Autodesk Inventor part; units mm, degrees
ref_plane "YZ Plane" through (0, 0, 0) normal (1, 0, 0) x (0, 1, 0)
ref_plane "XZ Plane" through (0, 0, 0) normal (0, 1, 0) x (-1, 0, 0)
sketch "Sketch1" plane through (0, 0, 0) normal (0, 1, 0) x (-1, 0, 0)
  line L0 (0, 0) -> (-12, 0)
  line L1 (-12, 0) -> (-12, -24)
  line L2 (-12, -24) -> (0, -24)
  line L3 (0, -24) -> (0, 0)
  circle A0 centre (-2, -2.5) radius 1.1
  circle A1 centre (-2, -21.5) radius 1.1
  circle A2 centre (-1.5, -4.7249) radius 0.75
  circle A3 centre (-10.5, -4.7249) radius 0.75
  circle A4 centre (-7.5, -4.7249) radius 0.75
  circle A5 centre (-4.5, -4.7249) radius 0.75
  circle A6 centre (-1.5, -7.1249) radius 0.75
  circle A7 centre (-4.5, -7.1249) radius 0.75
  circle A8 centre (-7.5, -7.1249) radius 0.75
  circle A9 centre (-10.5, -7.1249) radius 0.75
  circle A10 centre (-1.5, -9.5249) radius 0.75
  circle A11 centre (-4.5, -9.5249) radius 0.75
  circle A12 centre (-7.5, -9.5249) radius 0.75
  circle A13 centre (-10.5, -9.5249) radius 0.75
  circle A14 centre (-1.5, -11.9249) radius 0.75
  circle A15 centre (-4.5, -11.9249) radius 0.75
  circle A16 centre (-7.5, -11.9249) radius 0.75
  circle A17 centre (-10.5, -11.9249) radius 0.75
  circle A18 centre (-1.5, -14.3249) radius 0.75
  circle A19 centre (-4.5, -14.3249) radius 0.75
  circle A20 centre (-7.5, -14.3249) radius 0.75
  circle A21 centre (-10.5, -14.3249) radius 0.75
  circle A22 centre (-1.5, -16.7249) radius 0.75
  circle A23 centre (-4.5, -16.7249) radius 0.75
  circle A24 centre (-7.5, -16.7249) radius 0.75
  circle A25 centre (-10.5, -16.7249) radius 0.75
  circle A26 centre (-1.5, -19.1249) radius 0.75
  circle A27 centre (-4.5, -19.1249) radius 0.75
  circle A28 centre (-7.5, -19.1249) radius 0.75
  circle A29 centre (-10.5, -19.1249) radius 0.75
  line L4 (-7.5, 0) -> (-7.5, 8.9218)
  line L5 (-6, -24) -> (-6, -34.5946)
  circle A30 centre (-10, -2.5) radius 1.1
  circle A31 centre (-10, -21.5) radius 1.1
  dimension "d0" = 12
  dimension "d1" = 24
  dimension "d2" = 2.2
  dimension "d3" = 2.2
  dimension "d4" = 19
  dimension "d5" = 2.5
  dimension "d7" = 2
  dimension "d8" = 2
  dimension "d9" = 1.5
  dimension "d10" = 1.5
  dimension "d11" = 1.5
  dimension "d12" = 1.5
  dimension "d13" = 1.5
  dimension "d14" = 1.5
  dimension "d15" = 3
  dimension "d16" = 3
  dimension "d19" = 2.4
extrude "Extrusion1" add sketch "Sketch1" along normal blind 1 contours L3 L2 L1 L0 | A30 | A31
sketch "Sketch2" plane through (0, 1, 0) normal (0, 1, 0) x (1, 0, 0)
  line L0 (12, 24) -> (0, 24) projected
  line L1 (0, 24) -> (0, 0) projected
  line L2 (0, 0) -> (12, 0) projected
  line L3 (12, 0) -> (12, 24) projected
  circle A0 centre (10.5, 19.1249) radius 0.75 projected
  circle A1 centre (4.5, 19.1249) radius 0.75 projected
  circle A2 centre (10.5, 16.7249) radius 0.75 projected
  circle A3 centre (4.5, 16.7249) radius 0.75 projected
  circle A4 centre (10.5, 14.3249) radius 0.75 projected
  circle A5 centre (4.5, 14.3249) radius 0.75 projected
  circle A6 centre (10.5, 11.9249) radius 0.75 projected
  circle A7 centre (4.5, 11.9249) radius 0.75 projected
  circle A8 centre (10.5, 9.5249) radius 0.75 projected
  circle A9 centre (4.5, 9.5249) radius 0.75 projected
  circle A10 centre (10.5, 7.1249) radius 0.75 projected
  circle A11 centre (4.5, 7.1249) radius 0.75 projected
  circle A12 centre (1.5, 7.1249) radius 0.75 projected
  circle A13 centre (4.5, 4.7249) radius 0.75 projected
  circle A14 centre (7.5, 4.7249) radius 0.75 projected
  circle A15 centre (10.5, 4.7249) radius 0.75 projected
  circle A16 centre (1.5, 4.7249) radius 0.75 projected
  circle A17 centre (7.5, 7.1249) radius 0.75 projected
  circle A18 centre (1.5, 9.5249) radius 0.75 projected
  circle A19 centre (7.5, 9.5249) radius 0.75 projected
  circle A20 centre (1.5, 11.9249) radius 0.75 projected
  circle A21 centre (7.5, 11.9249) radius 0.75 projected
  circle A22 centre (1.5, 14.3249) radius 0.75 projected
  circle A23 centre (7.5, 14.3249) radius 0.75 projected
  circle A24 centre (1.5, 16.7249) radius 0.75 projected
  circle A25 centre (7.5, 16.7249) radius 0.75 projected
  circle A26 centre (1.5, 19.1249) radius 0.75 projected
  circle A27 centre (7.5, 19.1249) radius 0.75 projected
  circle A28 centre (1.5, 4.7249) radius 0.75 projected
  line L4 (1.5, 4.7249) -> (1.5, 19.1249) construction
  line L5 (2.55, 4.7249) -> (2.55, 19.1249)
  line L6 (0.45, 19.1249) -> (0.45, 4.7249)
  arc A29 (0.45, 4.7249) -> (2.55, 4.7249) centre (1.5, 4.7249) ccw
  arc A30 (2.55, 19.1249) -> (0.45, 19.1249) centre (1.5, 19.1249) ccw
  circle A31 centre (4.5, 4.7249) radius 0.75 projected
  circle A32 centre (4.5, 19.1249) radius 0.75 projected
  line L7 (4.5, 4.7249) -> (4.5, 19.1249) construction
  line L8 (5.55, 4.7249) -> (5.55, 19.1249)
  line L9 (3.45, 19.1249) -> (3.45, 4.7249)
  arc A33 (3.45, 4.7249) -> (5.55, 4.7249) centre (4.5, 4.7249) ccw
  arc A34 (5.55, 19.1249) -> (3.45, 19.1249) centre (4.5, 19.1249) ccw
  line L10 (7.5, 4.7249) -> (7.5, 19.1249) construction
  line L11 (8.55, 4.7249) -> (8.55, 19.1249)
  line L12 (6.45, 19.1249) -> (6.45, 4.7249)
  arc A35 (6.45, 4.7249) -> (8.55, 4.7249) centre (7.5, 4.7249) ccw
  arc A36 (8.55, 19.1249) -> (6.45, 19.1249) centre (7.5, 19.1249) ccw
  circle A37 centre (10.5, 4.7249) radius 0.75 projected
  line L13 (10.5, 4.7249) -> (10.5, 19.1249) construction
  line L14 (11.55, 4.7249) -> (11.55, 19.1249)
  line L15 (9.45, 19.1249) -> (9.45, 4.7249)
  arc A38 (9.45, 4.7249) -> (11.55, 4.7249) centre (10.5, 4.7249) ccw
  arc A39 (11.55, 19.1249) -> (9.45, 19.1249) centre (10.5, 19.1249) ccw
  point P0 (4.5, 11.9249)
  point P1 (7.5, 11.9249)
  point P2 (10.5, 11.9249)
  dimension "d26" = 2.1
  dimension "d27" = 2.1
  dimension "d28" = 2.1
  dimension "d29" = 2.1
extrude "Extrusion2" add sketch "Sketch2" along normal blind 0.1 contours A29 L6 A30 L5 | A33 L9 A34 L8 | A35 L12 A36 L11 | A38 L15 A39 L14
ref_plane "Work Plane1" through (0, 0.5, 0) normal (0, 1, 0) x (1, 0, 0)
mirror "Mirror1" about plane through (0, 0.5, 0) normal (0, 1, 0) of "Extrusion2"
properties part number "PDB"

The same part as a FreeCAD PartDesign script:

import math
import FreeCAD as App
import Part
import Sketcher
Q = App.Units.Quantity


def add_polygon(sketch, points):
    """Adds a closed chain of lines whose ends are joined by coincident constraints."""
    first, n = sketch.GeometryCount, len(points)
    for a, b in zip(points, points[1:] + points[:1]):
        sketch.addGeometry(Part.LineSegment(App.Vector(*a, 0), App.Vector(*b, 0)), False)
    for i in range(n):
        sketch.addConstraint(Sketcher.Constraint("Coincident", first + i, 2, first + (i + 1) % n, 1))

doc = App.newDocument("Part")
params = doc.addObject("Spreadsheet::Sheet", "Params")
for row, (alias, value) in enumerate([
    ("sketch1_diameter", "1.5 mm"),
    ("sketch1_diameter2", "2.2 mm"),
    ("sketch1_width", "12 mm"),
    ("sketch1_height", "24 mm"),
    ("pad1_length", "1 mm"),
    ("sketch2_radius", "1.05 mm"),
    ("sketch2_diameter", "1.5 mm"),
    ("sketch2_height", "14.4 mm"),
    ("pad2_length", "0.1 mm"),
], start=1):
    params.set(f"A{row}", alias)
    params.set(f"B{row}", "=" + value)
    params.setAlias(f"B{row}", alias)

body = doc.addObject("PartDesign::Body", "Body")

# Sketch on XZ plane
sketch1 = body.newObject("Sketcher::SketchObject", "Sketch")
sketch1.AttachmentSupport = (doc.getObject("XZ_Plane"), [""])
sketch1.MapMode = "FlatFace"
add_polygon(sketch1, [(0, -24), (0, 0), (12, 0), (12, -24)])  # lines 0-3
sketch1.addGeometry(Part.Circle(App.Vector(10.5, -19.1249, 0), App.Vector(0, 0, 1), 0.75), False)  # 4
sketch1.addGeometry(Part.Circle(App.Vector(7.5, -19.1249, 0), App.Vector(0, 0, 1), 0.75), False)  # 5
sketch1.addGeometry(Part.Circle(App.Vector(10.5, -16.7249, 0), App.Vector(0, 0, 1), 0.75), False)  # 6
sketch1.addGeometry(Part.Circle(App.Vector(10.5, -14.3249, 0), App.Vector(0, 0, 1), 0.75), False)  # 7
sketch1.addGeometry(Part.Circle(App.Vector(7.5, -16.7249, 0), App.Vector(0, 0, 1), 0.75), False)  # 8
sketch1.addGeometry(Part.Circle(App.Vector(7.5, -14.3249, 0), App.Vector(0, 0, 1), 0.75), False)  # 9
sketch1.addGeometry(Part.Circle(App.Vector(4.5, -19.1249, 0), App.Vector(0, 0, 1), 0.75), False)  # 10
sketch1.addGeometry(Part.Circle(App.Vector(2, -21.5, 0), App.Vector(0, 0, 1), 1.1), False)  # 11
sketch1.addGeometry(Part.Circle(App.Vector(1.5, -19.1249, 0), App.Vector(0, 0, 1), 0.75), False)  # 12
sketch1.addGeometry(Part.Circle(App.Vector(4.5, -16.7249, 0), App.Vector(0, 0, 1), 0.75), False)  # 13
sketch1.addGeometry(Part.Circle(App.Vector(4.5, -14.3249, 0), App.Vector(0, 0, 1), 0.75), False)  # 14
sketch1.addGeometry(Part.Circle(App.Vector(1.5, -16.7249, 0), App.Vector(0, 0, 1), 0.75), False)  # 15
sketch1.addGeometry(Part.Circle(App.Vector(1.5, -14.3249, 0), App.Vector(0, 0, 1), 0.75), False)  # 16
sketch1.addGeometry(Part.Circle(App.Vector(10.5, -11.9249, 0), App.Vector(0, 0, 1), 0.75), False)  # 17
sketch1.addGeometry(Part.Circle(App.Vector(10.5, -9.5249, 0), App.Vector(0, 0, 1), 0.75), False)  # 18
sketch1.addGeometry(Part.Circle(App.Vector(10.5, -7.1249, 0), App.Vector(0, 0, 1), 0.75), False)  # 19
sketch1.addGeometry(Part.Circle(App.Vector(7.5, -11.9249, 0), App.Vector(0, 0, 1), 0.75), False)  # 20
sketch1.addGeometry(Part.Circle(App.Vector(7.5, -9.5249, 0), App.Vector(0, 0, 1), 0.75), False)  # 21
sketch1.addGeometry(Part.Circle(App.Vector(7.5, -7.1249, 0), App.Vector(0, 0, 1), 0.75), False)  # 22
sketch1.addGeometry(Part.Circle(App.Vector(10.5, -4.7249, 0), App.Vector(0, 0, 1), 0.75), False)  # 23
sketch1.addGeometry(Part.Circle(App.Vector(7.5, -4.7249, 0), App.Vector(0, 0, 1), 0.75), False)  # 24
sketch1.addGeometry(Part.Circle(App.Vector(4.5, -11.9249, 0), App.Vector(0, 0, 1), 0.75), False)  # 25
sketch1.addGeometry(Part.Circle(App.Vector(4.5, -9.5249, 0), App.Vector(0, 0, 1), 0.75), False)  # 26
sketch1.addGeometry(Part.Circle(App.Vector(4.5, -7.1249, 0), App.Vector(0, 0, 1), 0.75), False)  # 27
sketch1.addGeometry(Part.Circle(App.Vector(1.5, -11.9249, 0), App.Vector(0, 0, 1), 0.75), False)  # 28
sketch1.addGeometry(Part.Circle(App.Vector(1.5, -9.5249, 0), App.Vector(0, 0, 1), 0.75), False)  # 29
sketch1.addGeometry(Part.Circle(App.Vector(1.5, -7.1249, 0), App.Vector(0, 0, 1), 0.75), False)  # 30
sketch1.addGeometry(Part.Circle(App.Vector(4.5, -4.7249, 0), App.Vector(0, 0, 1), 0.75), False)  # 31
sketch1.addGeometry(Part.Circle(App.Vector(1.5, -4.7249, 0), App.Vector(0, 0, 1), 0.75), False)  # 32
sketch1.addGeometry(Part.Circle(App.Vector(2, -2.5, 0), App.Vector(0, 0, 1), 1.1), False)  # 33
sketch1.addConstraint(Sketcher.Constraint("Vertical", 0))
sketch1.addConstraint(Sketcher.Constraint("Horizontal", 1))
sketch1.addConstraint(Sketcher.Constraint("Vertical", 2))
sketch1.addConstraint(Sketcher.Constraint("Horizontal", 3))
sketch1.addConstraint(Sketcher.Constraint("Coincident", 0, 2, -1, 1))
sketch1.addConstraint(Sketcher.Constraint("Equal", 4, 5))
sketch1.addConstraint(Sketcher.Constraint("Equal", 5, 6))
sketch1.addConstraint(Sketcher.Constraint("Equal", 6, 7))
sketch1.addConstraint(Sketcher.Constraint("Equal", 7, 8))
sketch1.addConstraint(Sketcher.Constraint("Equal", 8, 9))
sketch1.addConstraint(Sketcher.Constraint("Equal", 9, 10))
sketch1.addConstraint(Sketcher.Constraint("Equal", 10, 12))
sketch1.addConstraint(Sketcher.Constraint("Equal", 12, 13))
sketch1.addConstraint(Sketcher.Constraint("Equal", 13, 14))
sketch1.addConstraint(Sketcher.Constraint("Equal", 14, 15))
sketch1.addConstraint(Sketcher.Constraint("Equal", 15, 16))
sketch1.addConstraint(Sketcher.Constraint("Equal", 16, 17))
sketch1.addConstraint(Sketcher.Constraint("Equal", 17, 18))
sketch1.addConstraint(Sketcher.Constraint("Equal", 18, 19))
sketch1.addConstraint(Sketcher.Constraint("Equal", 19, 20))
sketch1.addConstraint(Sketcher.Constraint("Equal", 20, 21))
sketch1.addConstraint(Sketcher.Constraint("Equal", 21, 22))
sketch1.addConstraint(Sketcher.Constraint("Equal", 22, 23))
sketch1.addConstraint(Sketcher.Constraint("Equal", 23, 24))
sketch1.addConstraint(Sketcher.Constraint("Equal", 24, 25))
sketch1.addConstraint(Sketcher.Constraint("Equal", 25, 26))
sketch1.addConstraint(Sketcher.Constraint("Equal", 26, 27))
sketch1.addConstraint(Sketcher.Constraint("Equal", 27, 28))
sketch1.addConstraint(Sketcher.Constraint("Equal", 28, 29))
sketch1.addConstraint(Sketcher.Constraint("Equal", 29, 30))
sketch1.addConstraint(Sketcher.Constraint("Equal", 30, 31))
sketch1.addConstraint(Sketcher.Constraint("Equal", 31, 32))
sketch1.addConstraint(Sketcher.Constraint("Equal", 11, 33))
sketch1.addConstraint(Sketcher.Constraint("Horizontal", 4, 3, 5, 3))
sketch1.addConstraint(Sketcher.Constraint("Horizontal", 6, 3, 8, 3))
sketch1.addConstraint(Sketcher.Constraint("Horizontal", 7, 3, 9, 3))
sketch1.addConstraint(Sketcher.Constraint("Horizontal", 5, 3, 10, 3))
sketch1.addConstraint(Sketcher.Constraint("Horizontal", 10, 3, 12, 3))
sketch1.addConstraint(Sketcher.Constraint("Horizontal", 8, 3, 13, 3))
sketch1.addConstraint(Sketcher.Constraint("Horizontal", 9, 3, 14, 3))
sketch1.addConstraint(Sketcher.Constraint("Horizontal", 13, 3, 15, 3))
sketch1.addConstraint(Sketcher.Constraint("Horizontal", 14, 3, 16, 3))
sketch1.addConstraint(Sketcher.Constraint("Horizontal", 17, 3, 20, 3))
sketch1.addConstraint(Sketcher.Constraint("Horizontal", 18, 3, 21, 3))
sketch1.addConstraint(Sketcher.Constraint("Horizontal", 19, 3, 22, 3))
sketch1.addConstraint(Sketcher.Constraint("Horizontal", 23, 3, 24, 3))
sketch1.addConstraint(Sketcher.Constraint("Horizontal", 20, 3, 25, 3))
sketch1.addConstraint(Sketcher.Constraint("Horizontal", 21, 3, 26, 3))
sketch1.addConstraint(Sketcher.Constraint("Horizontal", 22, 3, 27, 3))
sketch1.addConstraint(Sketcher.Constraint("Horizontal", 25, 3, 28, 3))
sketch1.addConstraint(Sketcher.Constraint("Horizontal", 26, 3, 29, 3))
sketch1.addConstraint(Sketcher.Constraint("Horizontal", 27, 3, 30, 3))
sketch1.addConstraint(Sketcher.Constraint("Horizontal", 24, 3, 31, 3))
sketch1.addConstraint(Sketcher.Constraint("Horizontal", 31, 3, 32, 3))
sketch1.addConstraint(Sketcher.Constraint("Vertical", 4, 3, 6, 3))
sketch1.addConstraint(Sketcher.Constraint("Vertical", 6, 3, 7, 3))
sketch1.addConstraint(Sketcher.Constraint("Vertical", 5, 3, 8, 3))
sketch1.addConstraint(Sketcher.Constraint("Vertical", 8, 3, 9, 3))
sketch1.addConstraint(Sketcher.Constraint("Vertical", 10, 3, 13, 3))
sketch1.addConstraint(Sketcher.Constraint("Vertical", 13, 3, 14, 3))
sketch1.addConstraint(Sketcher.Constraint("Vertical", 12, 3, 15, 3))
sketch1.addConstraint(Sketcher.Constraint("Vertical", 15, 3, 16, 3))
sketch1.addConstraint(Sketcher.Constraint("Vertical", 7, 3, 17, 3))
sketch1.addConstraint(Sketcher.Constraint("Vertical", 17, 3, 18, 3))
sketch1.addConstraint(Sketcher.Constraint("Vertical", 18, 3, 19, 3))
sketch1.addConstraint(Sketcher.Constraint("Vertical", 9, 3, 20, 3))
sketch1.addConstraint(Sketcher.Constraint("Vertical", 20, 3, 21, 3))
sketch1.addConstraint(Sketcher.Constraint("Vertical", 21, 3, 22, 3))
sketch1.addConstraint(Sketcher.Constraint("Vertical", 19, 3, 23, 3))
sketch1.addConstraint(Sketcher.Constraint("Vertical", 22, 3, 24, 3))
sketch1.addConstraint(Sketcher.Constraint("Vertical", 14, 3, 25, 3))
sketch1.addConstraint(Sketcher.Constraint("Vertical", 25, 3, 26, 3))
sketch1.addConstraint(Sketcher.Constraint("Vertical", 26, 3, 27, 3))
sketch1.addConstraint(Sketcher.Constraint("Vertical", 16, 3, 28, 3))
sketch1.addConstraint(Sketcher.Constraint("Vertical", 28, 3, 29, 3))
sketch1.addConstraint(Sketcher.Constraint("Vertical", 29, 3, 30, 3))
sketch1.addConstraint(Sketcher.Constraint("Vertical", 27, 3, 31, 3))
sketch1.addConstraint(Sketcher.Constraint("Vertical", 30, 3, 32, 3))
sketch1.addConstraint(Sketcher.Constraint("Vertical", 11, 3, 33, 3))
sketch1.addConstraint(Sketcher.Constraint("Diameter", 4, Q("1.5 mm")))
sketch1.addConstraint(Sketcher.Constraint("Diameter", 11, Q("2.2 mm")))
sketch1.addConstraint(Sketcher.Constraint("DistanceX", 1, 1, 1, 2, Q("12 mm")))
sketch1.addConstraint(Sketcher.Constraint("DistanceY", 0, 1, 0, 2, Q("24 mm")))
sketch1.addConstraint(Sketcher.Constraint("DistanceX", -1, 1, 11, 3, Q("2 mm")))
sketch1.addConstraint(Sketcher.Constraint("DistanceX", 5, 3, 4, 3, Q("3 mm")))
sketch1.addConstraint(Sketcher.Constraint("DistanceX", 10, 3, 5, 3, Q("3 mm")))
sketch1.addConstraint(Sketcher.Constraint("DistanceX", 12, 3, 10, 3, Q("3 mm")))
sketch1.addConstraint(Sketcher.Constraint("DistanceX", -1, 1, 12, 3, Q("1.5 mm")))
sketch1.addConstraint(Sketcher.Constraint("DistanceY", 33, 3, -1, 1, Q("2.5 mm")))
sketch1.addConstraint(Sketcher.Constraint("DistanceY", 4, 3, 6, 3, Q("2.4 mm")))
sketch1.addConstraint(Sketcher.Constraint("DistanceY", 6, 3, 7, 3, Q("2.4 mm")))
sketch1.addConstraint(Sketcher.Constraint("DistanceY", 7, 3, 17, 3, Q("2.4 mm")))
sketch1.addConstraint(Sketcher.Constraint("DistanceY", 17, 3, 18, 3, Q("2.4 mm")))
sketch1.addConstraint(Sketcher.Constraint("DistanceY", 18, 3, 19, 3, Q("2.4 mm")))
sketch1.addConstraint(Sketcher.Constraint("DistanceY", 19, 3, 23, 3, Q("2.4 mm")))
sketch1.addConstraint(Sketcher.Constraint("DistanceY", 3, 2, 11, 3, Q("2.5 mm")))
sketch1.addConstraint(Sketcher.Constraint("DistanceY", 4, 3, -1, 1, Q("19.125 mm")))
sketch1.setExpression("Constraints[83]", "Params.sketch1_diameter")
sketch1.setExpression("Constraints[84]", "Params.sketch1_diameter2")
sketch1.setExpression("Constraints[85]", "Params.sketch1_width")
sketch1.setExpression("Constraints[86]", "Params.sketch1_height")
pad1 = body.newObject("PartDesign::Pad", "Pad")
pad1.Profile = sketch1
pad1.setExpression("Length", "Params.pad1_length")
pad1.Reversed = True

# Sketch on XZ plane
sketch2 = body.newObject("Sketcher::SketchObject", "Sketch001")
sketch2.AttachmentSupport = (doc.getObject("XZ_Plane"), [""])
sketch2.MapMode = "FlatFace"
sketch2.AttachmentOffset = App.Placement(App.Vector(0, 0, -1), App.Rotation())
sketch2.addGeometry(Part.ArcOfCircle(Part.Circle(App.Vector(1.5, -4.7249, 0), App.Vector(0, 0, 1), 1.05), math.radians(0), math.radians(180)), False)
sketch2.addGeometry(Part.LineSegment(App.Vector(2.55, -4.7249, 0), App.Vector(2.55, -19.1249, 0)), False)
sketch2.addGeometry(Part.ArcOfCircle(Part.Circle(App.Vector(1.5, -19.1249, 0), App.Vector(0, 0, 1), 1.05), math.radians(180), math.radians(360)), False)
sketch2.addGeometry(Part.LineSegment(App.Vector(0.45, -19.1249, 0), App.Vector(0.45, -4.7249, 0)), False)
sketch2.addGeometry(Part.Circle(App.Vector(1.5, -4.7249, 0), App.Vector(0, 0, 1), 0.75), False)
sketch2.addGeometry(Part.Circle(App.Vector(1.5, -7.1249, 0), App.Vector(0, 0, 1), 0.75), False)
sketch2.addGeometry(Part.Circle(App.Vector(1.5, -9.5249, 0), App.Vector(0, 0, 1), 0.75), False)
sketch2.addGeometry(Part.Circle(App.Vector(1.5, -11.9249, 0), App.Vector(0, 0, 1), 0.75), False)
sketch2.addGeometry(Part.Circle(App.Vector(1.5, -14.3249, 0), App.Vector(0, 0, 1), 0.75), False)
sketch2.addGeometry(Part.Circle(App.Vector(1.5, -16.7249, 0), App.Vector(0, 0, 1), 0.75), False)
sketch2.addGeometry(Part.Circle(App.Vector(1.5, -19.1249, 0), App.Vector(0, 0, 1), 0.75), False)
sketch2.addGeometry(Part.ArcOfCircle(Part.Circle(App.Vector(4.5, -4.7249, 0), App.Vector(0, 0, 1), 1.05), math.radians(0), math.radians(180)), False)
sketch2.addGeometry(Part.LineSegment(App.Vector(5.55, -4.7249, 0), App.Vector(5.55, -19.1249, 0)), False)
sketch2.addGeometry(Part.ArcOfCircle(Part.Circle(App.Vector(4.5, -19.1249, 0), App.Vector(0, 0, 1), 1.05), math.radians(180), math.radians(360)), False)
sketch2.addGeometry(Part.LineSegment(App.Vector(3.45, -19.1249, 0), App.Vector(3.45, -4.7249, 0)), False)
sketch2.addGeometry(Part.Circle(App.Vector(4.5, -4.7249, 0), App.Vector(0, 0, 1), 0.75), False)
sketch2.addGeometry(Part.Circle(App.Vector(4.5, -7.1249, 0), App.Vector(0, 0, 1), 0.75), False)
sketch2.addGeometry(Part.Circle(App.Vector(4.5, -9.5249, 0), App.Vector(0, 0, 1), 0.75), False)
sketch2.addGeometry(Part.Circle(App.Vector(4.5, -11.9249, 0), App.Vector(0, 0, 1), 0.75), False)
sketch2.addGeometry(Part.Circle(App.Vector(4.5, -14.3249, 0), App.Vector(0, 0, 1), 0.75), False)
sketch2.addGeometry(Part.Circle(App.Vector(4.5, -16.7249, 0), App.Vector(0, 0, 1), 0.75), False)
sketch2.addGeometry(Part.Circle(App.Vector(4.5, -19.1249, 0), App.Vector(0, 0, 1), 0.75), False)
sketch2.addGeometry(Part.ArcOfCircle(Part.Circle(App.Vector(7.5, -4.7249, 0), App.Vector(0, 0, 1), 1.05), math.radians(0), math.radians(180)), False)
sketch2.addGeometry(Part.LineSegment(App.Vector(8.55, -4.7249, 0), App.Vector(8.55, -19.1249, 0)), False)
sketch2.addGeometry(Part.ArcOfCircle(Part.Circle(App.Vector(7.5, -19.1249, 0), App.Vector(0, 0, 1), 1.05), math.radians(180), math.radians(360)), False)
sketch2.addGeometry(Part.LineSegment(App.Vector(6.45, -19.1249, 0), App.Vector(6.45, -4.7249, 0)), False)
sketch2.addGeometry(Part.Circle(App.Vector(7.5, -4.7249, 0), App.Vector(0, 0, 1), 0.75), False)
sketch2.addGeometry(Part.Circle(App.Vector(7.5, -7.1249, 0), App.Vector(0, 0, 1), 0.75), False)
sketch2.addGeometry(Part.Circle(App.Vector(7.5, -9.5249, 0), App.Vector(0, 0, 1), 0.75), False)
sketch2.addGeometry(Part.Circle(App.Vector(7.5, -11.9249, 0), App.Vector(0, 0, 1), 0.75), False)
sketch2.addGeometry(Part.Circle(App.Vector(7.5, -14.3249, 0), App.Vector(0, 0, 1), 0.75), False)
sketch2.addGeometry(Part.Circle(App.Vector(7.5, -16.7249, 0), App.Vector(0, 0, 1), 0.75), False)
sketch2.addGeometry(Part.Circle(App.Vector(7.5, -19.1249, 0), App.Vector(0, 0, 1), 0.75), False)
sketch2.addGeometry(Part.ArcOfCircle(Part.Circle(App.Vector(10.5, -4.7249, 0), App.Vector(0, 0, 1), 1.05), math.radians(0), math.radians(180)), False)
sketch2.addGeometry(Part.LineSegment(App.Vector(11.55, -4.7249, 0), App.Vector(11.55, -19.1249, 0)), False)
sketch2.addGeometry(Part.ArcOfCircle(Part.Circle(App.Vector(10.5, -19.1249, 0), App.Vector(0, 0, 1), 1.05), math.radians(180), math.radians(360)), False)
sketch2.addGeometry(Part.LineSegment(App.Vector(9.45, -19.1249, 0), App.Vector(9.45, -4.7249, 0)), False)
sketch2.addGeometry(Part.Circle(App.Vector(10.5, -4.7249, 0), App.Vector(0, 0, 1), 0.75), False)
sketch2.addGeometry(Part.Circle(App.Vector(10.5, -7.1249, 0), App.Vector(0, 0, 1), 0.75), False)
sketch2.addGeometry(Part.Circle(App.Vector(10.5, -9.5249, 0), App.Vector(0, 0, 1), 0.75), False)
sketch2.addGeometry(Part.Circle(App.Vector(10.5, -11.9249, 0), App.Vector(0, 0, 1), 0.75), False)
sketch2.addGeometry(Part.Circle(App.Vector(10.5, -14.3249, 0), App.Vector(0, 0, 1), 0.75), False)
sketch2.addGeometry(Part.Circle(App.Vector(10.5, -16.7249, 0), App.Vector(0, 0, 1), 0.75), False)
sketch2.addGeometry(Part.Circle(App.Vector(10.5, -19.1249, 0), App.Vector(0, 0, 1), 0.75), False)
sketch2.addConstraint(Sketcher.Constraint("Tangent", 0, 1, 1, 1))
sketch2.addConstraint(Sketcher.Constraint("Tangent", 1, 2, 2, 2))
sketch2.addConstraint(Sketcher.Constraint("Tangent", 2, 1, 3, 1))
sketch2.addConstraint(Sketcher.Constraint("Tangent", 3, 2, 0, 2))
sketch2.addConstraint(Sketcher.Constraint("Tangent", 11, 1, 12, 1))
sketch2.addConstraint(Sketcher.Constraint("Tangent", 12, 2, 13, 2))
sketch2.addConstraint(Sketcher.Constraint("Tangent", 13, 1, 14, 1))
sketch2.addConstraint(Sketcher.Constraint("Tangent", 14, 2, 11, 2))
sketch2.addConstraint(Sketcher.Constraint("Tangent", 22, 1, 23, 1))
sketch2.addConstraint(Sketcher.Constraint("Tangent", 23, 2, 24, 2))
sketch2.addConstraint(Sketcher.Constraint("Tangent", 24, 1, 25, 1))
sketch2.addConstraint(Sketcher.Constraint("Tangent", 25, 2, 22, 2))
sketch2.addConstraint(Sketcher.Constraint("Tangent", 33, 1, 34, 1))
sketch2.addConstraint(Sketcher.Constraint("Tangent", 34, 2, 35, 2))
sketch2.addConstraint(Sketcher.Constraint("Tangent", 35, 1, 36, 1))
sketch2.addConstraint(Sketcher.Constraint("Tangent", 36, 2, 33, 2))
sketch2.addConstraint(Sketcher.Constraint("Vertical", 1))
sketch2.addConstraint(Sketcher.Constraint("Vertical", 3))
sketch2.addConstraint(Sketcher.Constraint("Vertical", 12))
sketch2.addConstraint(Sketcher.Constraint("Vertical", 14))
sketch2.addConstraint(Sketcher.Constraint("Vertical", 23))
sketch2.addConstraint(Sketcher.Constraint("Vertical", 25))
sketch2.addConstraint(Sketcher.Constraint("Vertical", 34))
sketch2.addConstraint(Sketcher.Constraint("Vertical", 36))
sketch2.addConstraint(Sketcher.Constraint("Coincident", 4, 3, 0, 3))
sketch2.addConstraint(Sketcher.Constraint("Coincident", 10, 3, 2, 3))
sketch2.addConstraint(Sketcher.Constraint("Coincident", 15, 3, 11, 3))
sketch2.addConstraint(Sketcher.Constraint("Coincident", 21, 3, 13, 3))
sketch2.addConstraint(Sketcher.Constraint("Coincident", 26, 3, 22, 3))
sketch2.addConstraint(Sketcher.Constraint("Coincident", 32, 3, 24, 3))
sketch2.addConstraint(Sketcher.Constraint("Coincident", 37, 3, 33, 3))
sketch2.addConstraint(Sketcher.Constraint("Coincident", 43, 3, 35, 3))
sketch2.addConstraint(Sketcher.Constraint("Equal", 4, 5))
sketch2.addConstraint(Sketcher.Constraint("Equal", 5, 6))
sketch2.addConstraint(Sketcher.Constraint("Equal", 6, 7))
sketch2.addConstraint(Sketcher.Constraint("Equal", 7, 8))
sketch2.addConstraint(Sketcher.Constraint("Equal", 8, 9))
sketch2.addConstraint(Sketcher.Constraint("Equal", 9, 10))
sketch2.addConstraint(Sketcher.Constraint("Equal", 2, 11))
sketch2.addConstraint(Sketcher.Constraint("Equal", 10, 15))
sketch2.addConstraint(Sketcher.Constraint("Equal", 15, 16))
sketch2.addConstraint(Sketcher.Constraint("Equal", 16, 17))
sketch2.addConstraint(Sketcher.Constraint("Equal", 17, 18))
sketch2.addConstraint(Sketcher.Constraint("Equal", 18, 19))
sketch2.addConstraint(Sketcher.Constraint("Equal", 19, 20))
sketch2.addConstraint(Sketcher.Constraint("Equal", 20, 21))
sketch2.addConstraint(Sketcher.Constraint("Equal", 13, 22))
sketch2.addConstraint(Sketcher.Constraint("Equal", 21, 26))
sketch2.addConstraint(Sketcher.Constraint("Equal", 26, 27))
sketch2.addConstraint(Sketcher.Constraint("Equal", 27, 28))
sketch2.addConstraint(Sketcher.Constraint("Equal", 28, 29))
sketch2.addConstraint(Sketcher.Constraint("Equal", 29, 30))
sketch2.addConstraint(Sketcher.Constraint("Equal", 30, 31))
sketch2.addConstraint(Sketcher.Constraint("Equal", 31, 32))
sketch2.addConstraint(Sketcher.Constraint("Equal", 24, 33))
sketch2.addConstraint(Sketcher.Constraint("Equal", 32, 37))
sketch2.addConstraint(Sketcher.Constraint("Equal", 37, 38))
sketch2.addConstraint(Sketcher.Constraint("Equal", 38, 39))
sketch2.addConstraint(Sketcher.Constraint("Equal", 39, 40))
sketch2.addConstraint(Sketcher.Constraint("Equal", 40, 41))
sketch2.addConstraint(Sketcher.Constraint("Equal", 41, 42))
sketch2.addConstraint(Sketcher.Constraint("Equal", 42, 43))
sketch2.addConstraint(Sketcher.Constraint("Horizontal", 4, 3, 11, 3))
sketch2.addConstraint(Sketcher.Constraint("Horizontal", 10, 3, 13, 3))
sketch2.addConstraint(Sketcher.Constraint("Horizontal", 5, 3, 16, 3))
sketch2.addConstraint(Sketcher.Constraint("Horizontal", 6, 3, 17, 3))
sketch2.addConstraint(Sketcher.Constraint("Horizontal", 7, 3, 18, 3))
sketch2.addConstraint(Sketcher.Constraint("Horizontal", 8, 3, 19, 3))
sketch2.addConstraint(Sketcher.Constraint("Horizontal", 9, 3, 20, 3))
sketch2.addConstraint(Sketcher.Constraint("Horizontal", 15, 3, 22, 3))
sketch2.addConstraint(Sketcher.Constraint("Horizontal", 21, 3, 24, 3))
sketch2.addConstraint(Sketcher.Constraint("Horizontal", 16, 3, 27, 3))
sketch2.addConstraint(Sketcher.Constraint("Horizontal", 17, 3, 28, 3))
sketch2.addConstraint(Sketcher.Constraint("Horizontal", 18, 3, 29, 3))
sketch2.addConstraint(Sketcher.Constraint("Horizontal", 19, 3, 30, 3))
sketch2.addConstraint(Sketcher.Constraint("Horizontal", 20, 3, 31, 3))
sketch2.addConstraint(Sketcher.Constraint("Horizontal", 26, 3, 33, 3))
sketch2.addConstraint(Sketcher.Constraint("Horizontal", 32, 3, 35, 3))
sketch2.addConstraint(Sketcher.Constraint("Horizontal", 27, 3, 38, 3))
sketch2.addConstraint(Sketcher.Constraint("Horizontal", 28, 3, 39, 3))
sketch2.addConstraint(Sketcher.Constraint("Horizontal", 29, 3, 40, 3))
sketch2.addConstraint(Sketcher.Constraint("Horizontal", 30, 3, 41, 3))
sketch2.addConstraint(Sketcher.Constraint("Horizontal", 31, 3, 42, 3))
sketch2.addConstraint(Sketcher.Constraint("Vertical", 4, 3, 5, 3))
sketch2.addConstraint(Sketcher.Constraint("Vertical", 5, 3, 6, 3))
sketch2.addConstraint(Sketcher.Constraint("Vertical", 6, 3, 7, 3))
sketch2.addConstraint(Sketcher.Constraint("Vertical", 7, 3, 8, 3))
sketch2.addConstraint(Sketcher.Constraint("Vertical", 8, 3, 9, 3))
sketch2.addConstraint(Sketcher.Constraint("Vertical", 15, 3, 16, 3))
sketch2.addConstraint(Sketcher.Constraint("Vertical", 16, 3, 17, 3))
sketch2.addConstraint(Sketcher.Constraint("Vertical", 17, 3, 18, 3))
sketch2.addConstraint(Sketcher.Constraint("Vertical", 18, 3, 19, 3))
sketch2.addConstraint(Sketcher.Constraint("Vertical", 19, 3, 20, 3))
sketch2.addConstraint(Sketcher.Constraint("Vertical", 26, 3, 27, 3))
sketch2.addConstraint(Sketcher.Constraint("Vertical", 27, 3, 28, 3))
sketch2.addConstraint(Sketcher.Constraint("Vertical", 28, 3, 29, 3))
sketch2.addConstraint(Sketcher.Constraint("Vertical", 29, 3, 30, 3))
sketch2.addConstraint(Sketcher.Constraint("Vertical", 30, 3, 31, 3))
sketch2.addConstraint(Sketcher.Constraint("Vertical", 37, 3, 38, 3))
sketch2.addConstraint(Sketcher.Constraint("Vertical", 38, 3, 39, 3))
sketch2.addConstraint(Sketcher.Constraint("Vertical", 39, 3, 40, 3))
sketch2.addConstraint(Sketcher.Constraint("Vertical", 40, 3, 41, 3))
sketch2.addConstraint(Sketcher.Constraint("Vertical", 41, 3, 42, 3))
sketch2.addConstraint(Sketcher.Constraint("Radius", 0, Q("1.05 mm")))
sketch2.addConstraint(Sketcher.Constraint("Diameter", 4, Q("1.5 mm")))
sketch2.addConstraint(Sketcher.Constraint("DistanceY", 1, 2, 1, 1, Q("14.4 mm")))
sketch2.addConstraint(Sketcher.Constraint("DistanceY", 2, 3, 5, 3, Q("12 mm")))
sketch2.addConstraint(Sketcher.Constraint("DistanceX", 0, 3, 11, 3, Q("3 mm")))
sketch2.addConstraint(Sketcher.Constraint("DistanceX", 11, 3, 22, 3, Q("3 mm")))
sketch2.addConstraint(Sketcher.Constraint("DistanceX", 22, 3, 33, 3, Q("3 mm")))
sketch2.addConstraint(Sketcher.Constraint("DistanceX", -1, 1, 0, 3, Q("1.5 mm")))
sketch2.addConstraint(Sketcher.Constraint("DistanceY", 6, 3, 5, 3, Q("2.4 mm")))
sketch2.addConstraint(Sketcher.Constraint("DistanceY", 7, 3, 6, 3, Q("2.4 mm")))
sketch2.addConstraint(Sketcher.Constraint("DistanceY", 8, 3, 7, 3, Q("2.4 mm")))
sketch2.addConstraint(Sketcher.Constraint("DistanceY", 2, 3, 9, 3, Q("2.4 mm")))
sketch2.addConstraint(Sketcher.Constraint("DistanceY", 0, 3, -1, 1, Q("4.725 mm")))
sketch2.setExpression("Constraints[103]", "Params.sketch2_radius")
sketch2.setExpression("Constraints[104]", "Params.sketch2_diameter")
sketch2.setExpression("Constraints[105]", "Params.sketch2_height")
pad2 = body.newObject("PartDesign::Pad", "Pad001")
pad2.Profile = sketch2
pad2.setExpression("Length", "Params.pad2_length")
pad2.Reversed = True
doc.recompute()

datumplane = body.newObject("PartDesign::Plane", "DatumPlane")
datumplane.AttachmentSupport = (doc.getObject("XZ_Plane"), [""])
datumplane.MapMode = "FlatFace"
datumplane.AttachmentOffset = App.Placement(App.Vector(0, 0, -0.5), App.Rotation())
mirrored = body.newObject("PartDesign::Mirrored", "Mirrored")
mirrored.Originals = [pad2]
mirrored.MirrorPlane = (datumplane, [""])
body.Tip = mirrored

doc.recompute()
